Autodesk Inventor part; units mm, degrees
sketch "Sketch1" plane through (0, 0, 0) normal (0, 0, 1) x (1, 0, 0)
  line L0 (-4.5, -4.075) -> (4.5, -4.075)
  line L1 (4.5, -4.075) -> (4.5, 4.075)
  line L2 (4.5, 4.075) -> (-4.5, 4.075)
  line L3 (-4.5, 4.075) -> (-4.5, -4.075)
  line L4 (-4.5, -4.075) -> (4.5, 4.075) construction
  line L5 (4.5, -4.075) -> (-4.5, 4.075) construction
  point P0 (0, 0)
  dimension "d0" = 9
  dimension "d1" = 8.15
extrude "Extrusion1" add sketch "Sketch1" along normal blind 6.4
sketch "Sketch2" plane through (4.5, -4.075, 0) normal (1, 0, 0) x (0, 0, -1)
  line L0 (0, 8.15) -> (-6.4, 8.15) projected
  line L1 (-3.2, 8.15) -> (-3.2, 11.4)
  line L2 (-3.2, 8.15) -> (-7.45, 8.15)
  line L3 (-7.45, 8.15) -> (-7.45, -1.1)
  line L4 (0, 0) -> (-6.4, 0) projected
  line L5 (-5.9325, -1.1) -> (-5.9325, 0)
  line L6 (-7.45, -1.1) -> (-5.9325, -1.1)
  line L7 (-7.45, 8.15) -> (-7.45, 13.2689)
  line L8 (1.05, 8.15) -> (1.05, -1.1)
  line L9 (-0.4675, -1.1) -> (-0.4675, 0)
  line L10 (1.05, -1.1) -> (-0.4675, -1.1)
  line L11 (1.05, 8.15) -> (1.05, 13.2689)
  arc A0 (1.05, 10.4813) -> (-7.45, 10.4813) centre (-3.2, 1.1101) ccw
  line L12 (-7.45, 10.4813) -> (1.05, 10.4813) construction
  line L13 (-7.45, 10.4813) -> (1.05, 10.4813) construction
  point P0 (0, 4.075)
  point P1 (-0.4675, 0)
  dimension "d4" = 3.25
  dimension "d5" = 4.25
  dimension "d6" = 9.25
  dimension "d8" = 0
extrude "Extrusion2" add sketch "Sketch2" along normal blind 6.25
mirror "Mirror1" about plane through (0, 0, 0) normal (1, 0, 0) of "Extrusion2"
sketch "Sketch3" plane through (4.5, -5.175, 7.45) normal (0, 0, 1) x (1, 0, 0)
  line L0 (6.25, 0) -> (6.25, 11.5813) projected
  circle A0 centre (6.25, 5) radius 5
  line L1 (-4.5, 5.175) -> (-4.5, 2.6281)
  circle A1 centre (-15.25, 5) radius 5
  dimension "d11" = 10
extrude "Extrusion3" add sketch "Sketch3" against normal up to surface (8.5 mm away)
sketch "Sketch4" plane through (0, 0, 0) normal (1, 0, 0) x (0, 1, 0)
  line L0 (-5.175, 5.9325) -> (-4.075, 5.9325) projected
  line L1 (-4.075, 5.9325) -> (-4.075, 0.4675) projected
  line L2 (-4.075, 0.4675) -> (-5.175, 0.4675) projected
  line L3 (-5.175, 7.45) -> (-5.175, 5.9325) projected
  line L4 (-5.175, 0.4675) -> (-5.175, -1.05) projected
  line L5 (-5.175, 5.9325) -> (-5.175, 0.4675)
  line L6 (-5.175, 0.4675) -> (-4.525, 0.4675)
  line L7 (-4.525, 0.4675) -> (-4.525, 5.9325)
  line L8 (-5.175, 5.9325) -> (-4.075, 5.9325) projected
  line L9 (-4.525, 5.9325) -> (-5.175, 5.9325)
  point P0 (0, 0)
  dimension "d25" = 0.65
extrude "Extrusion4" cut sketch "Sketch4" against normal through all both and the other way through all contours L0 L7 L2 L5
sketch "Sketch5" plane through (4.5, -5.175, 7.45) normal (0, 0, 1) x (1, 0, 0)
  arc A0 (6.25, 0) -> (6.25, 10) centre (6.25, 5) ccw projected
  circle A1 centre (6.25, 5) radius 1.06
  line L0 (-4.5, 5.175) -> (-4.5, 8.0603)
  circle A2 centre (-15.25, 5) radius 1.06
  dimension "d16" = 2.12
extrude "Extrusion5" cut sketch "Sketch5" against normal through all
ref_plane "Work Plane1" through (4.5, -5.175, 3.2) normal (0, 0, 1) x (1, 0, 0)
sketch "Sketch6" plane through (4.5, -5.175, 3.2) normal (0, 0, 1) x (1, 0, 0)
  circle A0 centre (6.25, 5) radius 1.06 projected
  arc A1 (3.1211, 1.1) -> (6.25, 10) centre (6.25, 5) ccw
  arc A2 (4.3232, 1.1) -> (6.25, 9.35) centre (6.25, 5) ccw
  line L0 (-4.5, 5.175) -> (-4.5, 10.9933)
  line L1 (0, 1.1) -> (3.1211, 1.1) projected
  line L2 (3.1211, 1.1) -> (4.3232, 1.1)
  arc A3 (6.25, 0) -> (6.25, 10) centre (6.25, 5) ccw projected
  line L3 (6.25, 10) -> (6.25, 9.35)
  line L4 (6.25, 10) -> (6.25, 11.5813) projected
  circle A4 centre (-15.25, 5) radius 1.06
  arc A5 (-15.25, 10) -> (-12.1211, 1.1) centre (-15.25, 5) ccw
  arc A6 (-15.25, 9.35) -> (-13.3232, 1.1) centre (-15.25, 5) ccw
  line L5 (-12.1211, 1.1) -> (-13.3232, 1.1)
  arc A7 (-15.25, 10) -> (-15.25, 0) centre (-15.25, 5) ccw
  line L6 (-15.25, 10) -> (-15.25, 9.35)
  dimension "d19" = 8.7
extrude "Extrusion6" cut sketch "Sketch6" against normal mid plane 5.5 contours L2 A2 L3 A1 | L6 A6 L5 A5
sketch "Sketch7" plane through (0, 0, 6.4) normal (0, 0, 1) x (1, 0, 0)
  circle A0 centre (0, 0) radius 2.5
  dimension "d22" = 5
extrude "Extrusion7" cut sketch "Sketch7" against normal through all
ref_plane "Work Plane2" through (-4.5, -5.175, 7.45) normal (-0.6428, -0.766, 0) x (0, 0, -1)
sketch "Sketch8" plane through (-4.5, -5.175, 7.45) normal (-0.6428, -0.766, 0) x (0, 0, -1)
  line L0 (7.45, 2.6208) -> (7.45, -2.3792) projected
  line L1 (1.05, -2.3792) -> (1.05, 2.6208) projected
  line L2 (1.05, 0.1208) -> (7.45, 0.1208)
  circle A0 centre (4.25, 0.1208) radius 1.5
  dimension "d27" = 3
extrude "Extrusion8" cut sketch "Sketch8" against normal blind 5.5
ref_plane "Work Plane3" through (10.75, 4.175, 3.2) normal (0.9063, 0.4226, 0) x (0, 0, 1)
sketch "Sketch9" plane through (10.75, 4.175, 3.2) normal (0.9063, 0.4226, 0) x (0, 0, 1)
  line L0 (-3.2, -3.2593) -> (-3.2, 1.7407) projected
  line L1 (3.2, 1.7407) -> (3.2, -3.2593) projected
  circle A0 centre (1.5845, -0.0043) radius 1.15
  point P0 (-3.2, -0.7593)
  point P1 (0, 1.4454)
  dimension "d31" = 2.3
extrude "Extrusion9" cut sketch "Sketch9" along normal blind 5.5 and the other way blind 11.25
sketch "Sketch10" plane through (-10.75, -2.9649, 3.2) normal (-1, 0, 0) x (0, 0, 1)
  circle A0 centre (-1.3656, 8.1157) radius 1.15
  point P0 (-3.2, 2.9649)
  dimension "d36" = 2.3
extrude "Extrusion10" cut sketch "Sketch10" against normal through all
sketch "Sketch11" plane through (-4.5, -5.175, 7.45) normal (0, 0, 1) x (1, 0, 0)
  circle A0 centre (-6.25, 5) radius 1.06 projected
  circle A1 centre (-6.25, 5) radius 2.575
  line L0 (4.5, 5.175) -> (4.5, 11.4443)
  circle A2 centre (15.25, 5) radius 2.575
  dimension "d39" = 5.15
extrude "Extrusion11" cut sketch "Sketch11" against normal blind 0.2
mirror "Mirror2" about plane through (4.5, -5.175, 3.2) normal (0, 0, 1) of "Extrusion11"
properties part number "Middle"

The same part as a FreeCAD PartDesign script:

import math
import FreeCAD as App
import Part
import Sketcher


def add_polygon(sketch, points):
    """Adds a closed chain of lines whose ends are joined by coincident constraints."""
    first, n = sketch.GeometryCount, len(points)
    for a, b in zip(points, points[1:] + points[:1]):
        sketch.addGeometry(Part.LineSegment(App.Vector(*a, 0), App.Vector(*b, 0)), False)
    for i in range(n):
        sketch.addConstraint(Sketcher.Constraint("Coincident", first + i, 2, first + (i + 1) % n, 1))

doc = App.newDocument("Part")
body = doc.addObject("PartDesign::Body", "Body")

# Sketch on XY plane
sketch1 = body.newObject("Sketcher::SketchObject", "Sketch")
sketch1.AttachmentSupport = (doc.getObject("XY_Plane"), [""])
sketch1.MapMode = "FlatFace"
add_polygon(sketch1, [(-4, 4), (-4, -4), (4, -4), (4, 4)])  # lines 0-3
sketch1.addConstraint([
    Sketcher.Constraint("Vertical", 0),
    Sketcher.Constraint("Horizontal", 1),
    Sketcher.Constraint("Vertical", 2),
    Sketcher.Constraint("Horizontal", 3),
    Sketcher.Constraint("Symmetric", 0, 2, 2, 2, -1, 1),
    Sketcher.Constraint("DistanceX", 1, 1, 1, 2, 9.0),
    Sketcher.Constraint("DistanceY", 0, 2, 0, 1, 8.15),
])
pad1 = body.newObject("PartDesign::Pad", "Pad")
pad1.Profile = sketch1
pad1.Length = 6.4

# Sketch on YZ plane
sketch2 = body.newObject("Sketcher::SketchObject", "Sketch001")
sketch2.AttachmentSupport = (doc.getObject("YZ_Plane"), [""])
sketch2.MapMode = "FlatFace"
sketch2.AttachmentOffset = App.Placement(App.Vector(0, 0, 4.5), App.Rotation())
sketch2.addGeometry([
    Part.ArcOfCircle(Part.Circle(App.Vector(-3, 3.2, 0), App.Vector(0, 0, 1), 10.3), math.radians(-24), math.radians(24)),  # 0
    Part.LineSegment(App.Vector(6.4, 7.5, 0), App.Vector(-5.2, 7.5, 0)),  # 1
    Part.LineSegment(App.Vector(-5.2, 7.5, 0), App.Vector(-5.2, 5.9, 0)),  # 2
    Part.LineSegment(App.Vector(-5.2, 5.9, 0), App.Vector(-4.1, 5.9, 0)),  # 3
    Part.LineSegment(App.Vector(-4.1, 5.9, 0), App.Vector(-4.1, 0.5, 0)),  # 4
    Part.LineSegment(App.Vector(-4.1, 0.5, 0), App.Vector(-5.2, 0.5, 0)),  # 5
    Part.LineSegment(App.Vector(-5.2, 0.5, 0), App.Vector(-5.2, -1.1, 0)),  # 6
    Part.LineSegment(App.Vector(-5.2, -1.1, 0), App.Vector(6.4, -1.1, 0)),  # 7
], False)
sketch2.addConstraint([
    Sketcher.Constraint("Coincident", 0, 2, 1, 1),
    Sketcher.Constraint("Coincident", 1, 2, 2, 1),
    Sketcher.Constraint("Coincident", 2, 2, 3, 1),
    Sketcher.Constraint("Coincident", 3, 2, 4, 1),
    Sketcher.Constraint("Coincident", 4, 2, 5, 1),
    Sketcher.Constraint("Coincident", 5, 2, 6, 1),
    Sketcher.Constraint("Coincident", 6, 2, 7, 1),
    Sketcher.Constraint("Coincident", 7, 2, 0, 1),
    Sketcher.Constraint("Horizontal", 1),
    Sketcher.Constraint("Vertical", 2),
    Sketcher.Constraint("Horizontal", 3),
    Sketcher.Constraint("Vertical", 4),
    Sketcher.Constraint("Horizontal", 5),
    Sketcher.Constraint("Vertical", 6),
    Sketcher.Constraint("Horizontal", 7),
    Sketcher.Constraint("Vertical", 2, 2, 5, 2),
    Sketcher.Constraint("Vertical", 0, 2, 7, 2),
    Sketcher.Constraint("Equal", 2, 6),
    Sketcher.Constraint("Radius", 0, 10.29),
    Sketcher.Constraint("DistanceY", 0, 3, 0, 2, 4.25),
    Sketcher.Constraint("DistanceX", 3, 1, 3, 2, 1.1),
    Sketcher.Constraint("DistanceY", -1, 1, 0, 3, 3.2),
    Sketcher.Constraint("DistanceY", 4, 2, 4, 1, 5.465),
    Sketcher.Constraint("DistanceX", 1, 2, 0, 3, 2.21),
    Sketcher.Constraint("DistanceX", 0, 3, -1, 1, 2.965),
])
pad2 = body.newObject("PartDesign::Pad", "Pad001")
pad2.Profile = sketch2
pad2.Length = 6.25
doc.recompute()

mirrored = body.newObject("PartDesign::Mirrored", "Mirrored")
mirrored.Originals = [pad2]
mirrored.MirrorPlane = (doc.getObject("YZ_Plane"), [""])
body.Tip = mirrored

# Sketch on XY plane
sketch3 = body.newObject("Sketcher::SketchObject", "Sketch002")
sketch3.AttachmentSupport = (doc.getObject("XY_Plane"), [""])
sketch3.MapMode = "FlatFace"
sketch3.AttachmentOffset = App.Placement(App.Vector(0, 0, 7.45), App.Rotation())
sketch3.addGeometry([
    Part.Circle(App.Vector(11, 0, 0), App.Vector(0, 0, 1), 5),
    Part.Circle(App.Vector(-11, 0, 0), App.Vector(0, 0, 1), 5),
], False)
sketch3.addConstraint([
    Sketcher.Constraint("Equal", 0, 1),
    Sketcher.Constraint("Symmetric", 0, 3, 1, 3, -2),
    Sketcher.Constraint("Diameter", 0, 10.0),
    Sketcher.Constraint("DistanceX", 1, 3, 0, 3, 21.5),
    Sketcher.Constraint("DistanceY", 0, 3, -1, 1, 0.175),
])
pad3 = body.newObject("PartDesign::Pad", "Pad002")
pad3.Profile = sketch3
pad3.Length = 8.5
pad3.Reversed = True

# Sketch on YZ plane
sketch4 = body.newObject("Sketcher::SketchObject", "Sketch003")
sketch4.AttachmentSupport = (doc.getObject("YZ_Plane"), [""])
sketch4.MapMode = "FlatFace"
add_polygon(sketch4, [(-4.5, 5.9), (-5.2, 5.9), (-5.2, 0.5), (-4.5, 0.5)])  # lines 0-3
sketch4.addConstraint([
    Sketcher.Constraint("Horizontal", 0),
    Sketcher.Constraint("Vertical", 1),
    Sketcher.Constraint("Horizontal", 2),
    Sketcher.Constraint("Vertical", 3),
    Sketcher.Constraint("DistanceX", 0, 2, 0, 1, 0.65),
    Sketcher.Constraint("DistanceY", 1, 2, 1, 1, 5.465),
    Sketcher.Constraint("DistanceX", 0, 2, -1, 1, 5.175),
    Sketcher.Constraint("DistanceY", -1, 1, 0, 2, 5.9325),
])
pocket1 = body.newObject("PartDesign::Pocket", "Pocket")
pocket1.Profile = sketch4
pocket1.Type = "ThroughAll"
pocket1.Midplane = True

# Sketch on XY plane
sketch5 = body.newObject("Sketcher::SketchObject", "Sketch004")
sketch5.AttachmentSupport = (doc.getObject("XY_Plane"), [""])
sketch5.MapMode = "FlatFace"
sketch5.AttachmentOffset = App.Placement(App.Vector(0, 0, 7.45), App.Rotation())
sketch5.addGeometry([
    Part.Circle(App.Vector(10.8, -0.2, 0), App.Vector(0, 0, 1), 1.1),
    Part.Circle(App.Vector(-10.8, -0.2, 0), App.Vector(0, 0, 1), 1.1),
], False)
sketch5.addConstraint([
    Sketcher.Constraint("Equal", 0, 1),
    Sketcher.Constraint("Symmetric", 0, 3, 1, 3, -2),
    Sketcher.Constraint("Diameter", 0, 2.12),
    Sketcher.Constraint("DistanceX", 1, 3, 0, 3, 21.5),
    Sketcher.Constraint("DistanceY", 0, 3, -1, 1, 0.175),
])
pocket2 = body.newObject("PartDesign::Pocket", "Pocket001")
pocket2.Profile = sketch5
pocket2.Type = "ThroughAll"

# Sketch on XY plane
sketch6 = body.newObject("Sketcher::SketchObject", "Sketch005")
sketch6.AttachmentSupport = (doc.getObject("XY_Plane"), [""])
sketch6.MapMode = "FlatFace"
sketch6.AttachmentOffset = App.Placement(App.Vector(0, 0, 3.2), App.Rotation())
sketch6.addGeometry([
    Part.LineSegment(App.Vector(8.8, -4.1, 0), App.Vector(7.6, -4.1, 0)),  # 0
    Part.ArcOfCircle(Part.Circle(App.Vector(10.8, -0.2, 0), App.Vector(0, 0, 1), 5), math.radians(-129), math.radians(90)),  # 1
    Part.LineSegment(App.Vector(10.8, 4.8, 0), App.Vector(10.8, 4.2, 0)),  # 2
    Part.ArcOfCircle(Part.Circle(App.Vector(10.8, -0.2, 0), App.Vector(0, 0, 1), 4.4), math.radians(-116), math.radians(90)),  # 3
    Part.LineSegment(App.Vector(-10.8, 4.2, 0), App.Vector(-10.8, 4.8, 0)),  # 4
    Part.ArcOfCircle(Part.Circle(App.Vector(-10.8, -0.2, 0), App.Vector(0, 0, 1), 5), math.radians(90), math.radians(309)),  # 5
    Part.LineSegment(App.Vector(-7.6, -4.1, 0), App.Vector(-8.8, -4.1, 0)),  # 6
    Part.ArcOfCircle(Part.Circle(App.Vector(-10.8, -0.2, 0), App.Vector(0, 0, 1), 4.3), math.radians(90), math.radians(296)),  # 7
], False)
sketch6.addConstraint([
    Sketcher.Constraint("Coincident", 0, 2, 1, 1),
    Sketcher.Constraint("Coincident", 1, 2, 2, 1),
    Sketcher.Constraint("Coincident", 2, 2, 3, 2),
    Sketcher.Constraint("Coincident", 3, 1, 0, 1),
    Sketcher.Constraint("Coincident", 4, 2, 5, 1),
    Sketcher.Constraint("Coincident", 5, 2, 6, 1),
    Sketcher.Constraint("Coincident", 6, 2, 7, 2),
    Sketcher.Constraint("Coincident", 7, 1, 4, 1),
    Sketcher.Constraint("Horizontal", 0),
    Sketcher.Constraint("Vertical", 2),
    Sketcher.Constraint("Vertical", 4),
    Sketcher.Constraint("Horizontal", 6),
    Sketcher.Constraint("Coincident", 3, 3, 1, 3),
    Sketcher.Constraint("Coincident", 7, 3, 5, 3),
    Sketcher.Constraint("Equal", 1, 5),
    Sketcher.Constraint("Equal", 3, 7),
    Sketcher.Constraint("Symmetric", 1, 3, 5, 3, -2),
    Sketcher.Constraint("Horizontal", 3, 1, 5, 2),
    Sketcher.Constraint("Vertical", 3, 3, 1, 2),
    Sketcher.Constraint("Vertical", 7, 3, 4, 2),
    Sketcher.Constraint("Radius", 3, 4.35),
    Sketcher.Constraint("Radius", 1, 5.0),
    Sketcher.Constraint("DistanceX", 5, 3, 1, 3, 21.5),
    Sketcher.Constraint("DistanceY", 0, 2, 1, 3, 3.9),
    Sketcher.Constraint("DistanceY", 1, 3, -1, 1, 0.175),
])
pocket3 = body.newObject("PartDesign::Pocket", "Pocket002")
pocket3.Profile = sketch6
pocket3.Length = 5.5
pocket3.Midplane = True

# Sketch on XY plane
sketch7 = body.newObject("Sketcher::SketchObject", "Sketch006")
sketch7.AttachmentSupport = (doc.getObject("XY_Plane"), [""])
sketch7.MapMode = "FlatFace"
sketch7.AttachmentOffset = App.Placement(App.Vector(0, 0, 6.4), App.Rotation())
sketch7.addGeometry(Part.Circle(App.Vector(0, 0, 0), App.Vector(0, 0, 1), 2.5), False)
sketch7.addConstraint([
    Sketcher.Constraint("Coincident", 0, 3, -1, 1),
    Sketcher.Constraint("Diameter", 0, 5.0),
])
pocket4 = body.newObject("PartDesign::Pocket", "Pocket003")
pocket4.Profile = sketch7
pocket4.Type = "ThroughAll"

# Sketch on an angled plane
sketch8 = body.newObject("Sketcher::SketchObject", "Sketch007")
sketch8.Placement = App.Placement(App.Vector(-4.5, -5.175, 7.45), App.Rotation(App.Vector(0, 0, -1), App.Vector(0.766044443, -0.64278761, 0), App.Vector(-0.64278761, -0.766044443, 0), "ZXY"))
sketch8.addGeometry(Part.Circle(App.Vector(4.2, 0.1, 0), App.Vector(0, 0, 1), 1.5), False)
sketch8.addConstraint([
    Sketcher.Constraint("Diameter", 0, 3.0),
    Sketcher.Constraint("DistanceX", -1, 1, 0, 3, 4.25),
    Sketcher.Constraint("DistanceY", -1, 1, 0, 3, 0.1208),
])
pocket5 = body.newObject("PartDesign::Pocket", "Pocket004")
pocket5.Profile = sketch8
pocket5.Length = 5.5

# Sketch on an angled plane
sketch9 = body.newObject("Sketcher::SketchObject", "Sketch008")
sketch9.Placement = App.Placement(App.Vector(10.75, 4.175, 3.2), App.Rotation(App.Vector(0, 0, 1), App.Vector(0.422618262, -0.906307787, 0), App.Vector(0.906307787, 0.422618262, 0), "ZXY"))
sketch9.addGeometry(Part.Circle(App.Vector(1.6, 0, 0), App.Vector(0, 0, 1), 1.1), False)
sketch9.addConstraint([
    Sketcher.Constraint("Diameter", 0, 2.3),
    Sketcher.Constraint("DistanceX", -1, 1, 0, 3, 1.5845),
    Sketcher.Constraint("DistanceY", 0, 3, -1, 1, 0.0043),
])
pocket6 = body.newObject("PartDesign::Pocket", "Pocket005")
pocket6.Profile = sketch9
pocket6.Type = "TwoLengths"
pocket6.Length = 5.5
pocket6.Length2 = 11.25
pocket6.Reversed = True

# Sketch on YZ plane
sketch10 = body.newObject("Sketcher::SketchObject", "Sketch009")
sketch10.AttachmentSupport = (doc.getObject("YZ_Plane"), [""])
sketch10.MapMode = "FlatFace"
sketch10.AttachmentOffset = App.Placement(App.Vector(0, 0, -10.75), App.Rotation())
sketch10.addGeometry(Part.Circle(App.Vector(5.2, 1.8, 0), App.Vector(0, 0, 1), 1.1), False)
sketch10.addConstraint([
    Sketcher.Constraint("Diameter", 0, 2.3),
    Sketcher.Constraint("DistanceX", -1, 1, 0, 3, 5.1508),
    Sketcher.Constraint("DistanceY", -1, 1, 0, 3, 1.8344),
])
pocket7 = body.newObject("PartDesign::Pocket", "Pocket006")
pocket7.Profile = sketch10
pocket7.Type = "ThroughAll"
pocket7.Reversed = True

# Sketch on XY plane
sketch11 = body.newObject("Sketcher::SketchObject", "Sketch010")
sketch11.AttachmentSupport = (doc.getObject("XY_Plane"), [""])
sketch11.MapMode = "FlatFace"
sketch11.AttachmentOffset = App.Placement(App.Vector(0, 0, 7.45), App.Rotation())
sketch11.addGeometry([
    Part.Circle(App.Vector(-10.8, -0.2, 0), App.Vector(0, 0, 1), 2.6),
    Part.Circle(App.Vector(-10.8, -0.2, 0), App.Vector(0, 0, 1), 1.1),
    Part.Circle(App.Vector(10.8, -0.2, 0), App.Vector(0, 0, 1), 2.6),
], False)
sketch11.addConstraint([
    Sketcher.Constraint("Coincident", 1, 3, 0, 3),
    Sketcher.Constraint("Equal", 0, 2),
    Sketcher.Constraint("Symmetric", 0, 3, 2, 3, -2),
    Sketcher.Constraint("Diameter", 0, 5.15),
    Sketcher.Constraint("Diameter", 1, 2.12),
    Sketcher.Constraint("DistanceX", 0, 3, 2, 3, 21.5),
    Sketcher.Constraint("DistanceY", 0, 3, -1, 1, 0.175),
])
pocket8 = body.newObject("PartDesign::Pocket", "Pocket007")
pocket8.Profile = sketch11
pocket8.Length = 0.2
doc.recompute()

datumplane = body.newObject("PartDesign::Plane", "DatumPlane")
datumplane.AttachmentSupport = (doc.getObject("XY_Plane"), [""])
datumplane.MapMode = "FlatFace"
datumplane.AttachmentOffset = App.Placement(App.Vector(0, 0, 3.2), App.Rotation())
mirrored2 = body.newObject("PartDesign::Mirrored", "Mirrored001")
mirrored2.Originals = [pocket8]
mirrored2.MirrorPlane = (datumplane, [""])
body.Tip = mirrored2

doc.recompute()
